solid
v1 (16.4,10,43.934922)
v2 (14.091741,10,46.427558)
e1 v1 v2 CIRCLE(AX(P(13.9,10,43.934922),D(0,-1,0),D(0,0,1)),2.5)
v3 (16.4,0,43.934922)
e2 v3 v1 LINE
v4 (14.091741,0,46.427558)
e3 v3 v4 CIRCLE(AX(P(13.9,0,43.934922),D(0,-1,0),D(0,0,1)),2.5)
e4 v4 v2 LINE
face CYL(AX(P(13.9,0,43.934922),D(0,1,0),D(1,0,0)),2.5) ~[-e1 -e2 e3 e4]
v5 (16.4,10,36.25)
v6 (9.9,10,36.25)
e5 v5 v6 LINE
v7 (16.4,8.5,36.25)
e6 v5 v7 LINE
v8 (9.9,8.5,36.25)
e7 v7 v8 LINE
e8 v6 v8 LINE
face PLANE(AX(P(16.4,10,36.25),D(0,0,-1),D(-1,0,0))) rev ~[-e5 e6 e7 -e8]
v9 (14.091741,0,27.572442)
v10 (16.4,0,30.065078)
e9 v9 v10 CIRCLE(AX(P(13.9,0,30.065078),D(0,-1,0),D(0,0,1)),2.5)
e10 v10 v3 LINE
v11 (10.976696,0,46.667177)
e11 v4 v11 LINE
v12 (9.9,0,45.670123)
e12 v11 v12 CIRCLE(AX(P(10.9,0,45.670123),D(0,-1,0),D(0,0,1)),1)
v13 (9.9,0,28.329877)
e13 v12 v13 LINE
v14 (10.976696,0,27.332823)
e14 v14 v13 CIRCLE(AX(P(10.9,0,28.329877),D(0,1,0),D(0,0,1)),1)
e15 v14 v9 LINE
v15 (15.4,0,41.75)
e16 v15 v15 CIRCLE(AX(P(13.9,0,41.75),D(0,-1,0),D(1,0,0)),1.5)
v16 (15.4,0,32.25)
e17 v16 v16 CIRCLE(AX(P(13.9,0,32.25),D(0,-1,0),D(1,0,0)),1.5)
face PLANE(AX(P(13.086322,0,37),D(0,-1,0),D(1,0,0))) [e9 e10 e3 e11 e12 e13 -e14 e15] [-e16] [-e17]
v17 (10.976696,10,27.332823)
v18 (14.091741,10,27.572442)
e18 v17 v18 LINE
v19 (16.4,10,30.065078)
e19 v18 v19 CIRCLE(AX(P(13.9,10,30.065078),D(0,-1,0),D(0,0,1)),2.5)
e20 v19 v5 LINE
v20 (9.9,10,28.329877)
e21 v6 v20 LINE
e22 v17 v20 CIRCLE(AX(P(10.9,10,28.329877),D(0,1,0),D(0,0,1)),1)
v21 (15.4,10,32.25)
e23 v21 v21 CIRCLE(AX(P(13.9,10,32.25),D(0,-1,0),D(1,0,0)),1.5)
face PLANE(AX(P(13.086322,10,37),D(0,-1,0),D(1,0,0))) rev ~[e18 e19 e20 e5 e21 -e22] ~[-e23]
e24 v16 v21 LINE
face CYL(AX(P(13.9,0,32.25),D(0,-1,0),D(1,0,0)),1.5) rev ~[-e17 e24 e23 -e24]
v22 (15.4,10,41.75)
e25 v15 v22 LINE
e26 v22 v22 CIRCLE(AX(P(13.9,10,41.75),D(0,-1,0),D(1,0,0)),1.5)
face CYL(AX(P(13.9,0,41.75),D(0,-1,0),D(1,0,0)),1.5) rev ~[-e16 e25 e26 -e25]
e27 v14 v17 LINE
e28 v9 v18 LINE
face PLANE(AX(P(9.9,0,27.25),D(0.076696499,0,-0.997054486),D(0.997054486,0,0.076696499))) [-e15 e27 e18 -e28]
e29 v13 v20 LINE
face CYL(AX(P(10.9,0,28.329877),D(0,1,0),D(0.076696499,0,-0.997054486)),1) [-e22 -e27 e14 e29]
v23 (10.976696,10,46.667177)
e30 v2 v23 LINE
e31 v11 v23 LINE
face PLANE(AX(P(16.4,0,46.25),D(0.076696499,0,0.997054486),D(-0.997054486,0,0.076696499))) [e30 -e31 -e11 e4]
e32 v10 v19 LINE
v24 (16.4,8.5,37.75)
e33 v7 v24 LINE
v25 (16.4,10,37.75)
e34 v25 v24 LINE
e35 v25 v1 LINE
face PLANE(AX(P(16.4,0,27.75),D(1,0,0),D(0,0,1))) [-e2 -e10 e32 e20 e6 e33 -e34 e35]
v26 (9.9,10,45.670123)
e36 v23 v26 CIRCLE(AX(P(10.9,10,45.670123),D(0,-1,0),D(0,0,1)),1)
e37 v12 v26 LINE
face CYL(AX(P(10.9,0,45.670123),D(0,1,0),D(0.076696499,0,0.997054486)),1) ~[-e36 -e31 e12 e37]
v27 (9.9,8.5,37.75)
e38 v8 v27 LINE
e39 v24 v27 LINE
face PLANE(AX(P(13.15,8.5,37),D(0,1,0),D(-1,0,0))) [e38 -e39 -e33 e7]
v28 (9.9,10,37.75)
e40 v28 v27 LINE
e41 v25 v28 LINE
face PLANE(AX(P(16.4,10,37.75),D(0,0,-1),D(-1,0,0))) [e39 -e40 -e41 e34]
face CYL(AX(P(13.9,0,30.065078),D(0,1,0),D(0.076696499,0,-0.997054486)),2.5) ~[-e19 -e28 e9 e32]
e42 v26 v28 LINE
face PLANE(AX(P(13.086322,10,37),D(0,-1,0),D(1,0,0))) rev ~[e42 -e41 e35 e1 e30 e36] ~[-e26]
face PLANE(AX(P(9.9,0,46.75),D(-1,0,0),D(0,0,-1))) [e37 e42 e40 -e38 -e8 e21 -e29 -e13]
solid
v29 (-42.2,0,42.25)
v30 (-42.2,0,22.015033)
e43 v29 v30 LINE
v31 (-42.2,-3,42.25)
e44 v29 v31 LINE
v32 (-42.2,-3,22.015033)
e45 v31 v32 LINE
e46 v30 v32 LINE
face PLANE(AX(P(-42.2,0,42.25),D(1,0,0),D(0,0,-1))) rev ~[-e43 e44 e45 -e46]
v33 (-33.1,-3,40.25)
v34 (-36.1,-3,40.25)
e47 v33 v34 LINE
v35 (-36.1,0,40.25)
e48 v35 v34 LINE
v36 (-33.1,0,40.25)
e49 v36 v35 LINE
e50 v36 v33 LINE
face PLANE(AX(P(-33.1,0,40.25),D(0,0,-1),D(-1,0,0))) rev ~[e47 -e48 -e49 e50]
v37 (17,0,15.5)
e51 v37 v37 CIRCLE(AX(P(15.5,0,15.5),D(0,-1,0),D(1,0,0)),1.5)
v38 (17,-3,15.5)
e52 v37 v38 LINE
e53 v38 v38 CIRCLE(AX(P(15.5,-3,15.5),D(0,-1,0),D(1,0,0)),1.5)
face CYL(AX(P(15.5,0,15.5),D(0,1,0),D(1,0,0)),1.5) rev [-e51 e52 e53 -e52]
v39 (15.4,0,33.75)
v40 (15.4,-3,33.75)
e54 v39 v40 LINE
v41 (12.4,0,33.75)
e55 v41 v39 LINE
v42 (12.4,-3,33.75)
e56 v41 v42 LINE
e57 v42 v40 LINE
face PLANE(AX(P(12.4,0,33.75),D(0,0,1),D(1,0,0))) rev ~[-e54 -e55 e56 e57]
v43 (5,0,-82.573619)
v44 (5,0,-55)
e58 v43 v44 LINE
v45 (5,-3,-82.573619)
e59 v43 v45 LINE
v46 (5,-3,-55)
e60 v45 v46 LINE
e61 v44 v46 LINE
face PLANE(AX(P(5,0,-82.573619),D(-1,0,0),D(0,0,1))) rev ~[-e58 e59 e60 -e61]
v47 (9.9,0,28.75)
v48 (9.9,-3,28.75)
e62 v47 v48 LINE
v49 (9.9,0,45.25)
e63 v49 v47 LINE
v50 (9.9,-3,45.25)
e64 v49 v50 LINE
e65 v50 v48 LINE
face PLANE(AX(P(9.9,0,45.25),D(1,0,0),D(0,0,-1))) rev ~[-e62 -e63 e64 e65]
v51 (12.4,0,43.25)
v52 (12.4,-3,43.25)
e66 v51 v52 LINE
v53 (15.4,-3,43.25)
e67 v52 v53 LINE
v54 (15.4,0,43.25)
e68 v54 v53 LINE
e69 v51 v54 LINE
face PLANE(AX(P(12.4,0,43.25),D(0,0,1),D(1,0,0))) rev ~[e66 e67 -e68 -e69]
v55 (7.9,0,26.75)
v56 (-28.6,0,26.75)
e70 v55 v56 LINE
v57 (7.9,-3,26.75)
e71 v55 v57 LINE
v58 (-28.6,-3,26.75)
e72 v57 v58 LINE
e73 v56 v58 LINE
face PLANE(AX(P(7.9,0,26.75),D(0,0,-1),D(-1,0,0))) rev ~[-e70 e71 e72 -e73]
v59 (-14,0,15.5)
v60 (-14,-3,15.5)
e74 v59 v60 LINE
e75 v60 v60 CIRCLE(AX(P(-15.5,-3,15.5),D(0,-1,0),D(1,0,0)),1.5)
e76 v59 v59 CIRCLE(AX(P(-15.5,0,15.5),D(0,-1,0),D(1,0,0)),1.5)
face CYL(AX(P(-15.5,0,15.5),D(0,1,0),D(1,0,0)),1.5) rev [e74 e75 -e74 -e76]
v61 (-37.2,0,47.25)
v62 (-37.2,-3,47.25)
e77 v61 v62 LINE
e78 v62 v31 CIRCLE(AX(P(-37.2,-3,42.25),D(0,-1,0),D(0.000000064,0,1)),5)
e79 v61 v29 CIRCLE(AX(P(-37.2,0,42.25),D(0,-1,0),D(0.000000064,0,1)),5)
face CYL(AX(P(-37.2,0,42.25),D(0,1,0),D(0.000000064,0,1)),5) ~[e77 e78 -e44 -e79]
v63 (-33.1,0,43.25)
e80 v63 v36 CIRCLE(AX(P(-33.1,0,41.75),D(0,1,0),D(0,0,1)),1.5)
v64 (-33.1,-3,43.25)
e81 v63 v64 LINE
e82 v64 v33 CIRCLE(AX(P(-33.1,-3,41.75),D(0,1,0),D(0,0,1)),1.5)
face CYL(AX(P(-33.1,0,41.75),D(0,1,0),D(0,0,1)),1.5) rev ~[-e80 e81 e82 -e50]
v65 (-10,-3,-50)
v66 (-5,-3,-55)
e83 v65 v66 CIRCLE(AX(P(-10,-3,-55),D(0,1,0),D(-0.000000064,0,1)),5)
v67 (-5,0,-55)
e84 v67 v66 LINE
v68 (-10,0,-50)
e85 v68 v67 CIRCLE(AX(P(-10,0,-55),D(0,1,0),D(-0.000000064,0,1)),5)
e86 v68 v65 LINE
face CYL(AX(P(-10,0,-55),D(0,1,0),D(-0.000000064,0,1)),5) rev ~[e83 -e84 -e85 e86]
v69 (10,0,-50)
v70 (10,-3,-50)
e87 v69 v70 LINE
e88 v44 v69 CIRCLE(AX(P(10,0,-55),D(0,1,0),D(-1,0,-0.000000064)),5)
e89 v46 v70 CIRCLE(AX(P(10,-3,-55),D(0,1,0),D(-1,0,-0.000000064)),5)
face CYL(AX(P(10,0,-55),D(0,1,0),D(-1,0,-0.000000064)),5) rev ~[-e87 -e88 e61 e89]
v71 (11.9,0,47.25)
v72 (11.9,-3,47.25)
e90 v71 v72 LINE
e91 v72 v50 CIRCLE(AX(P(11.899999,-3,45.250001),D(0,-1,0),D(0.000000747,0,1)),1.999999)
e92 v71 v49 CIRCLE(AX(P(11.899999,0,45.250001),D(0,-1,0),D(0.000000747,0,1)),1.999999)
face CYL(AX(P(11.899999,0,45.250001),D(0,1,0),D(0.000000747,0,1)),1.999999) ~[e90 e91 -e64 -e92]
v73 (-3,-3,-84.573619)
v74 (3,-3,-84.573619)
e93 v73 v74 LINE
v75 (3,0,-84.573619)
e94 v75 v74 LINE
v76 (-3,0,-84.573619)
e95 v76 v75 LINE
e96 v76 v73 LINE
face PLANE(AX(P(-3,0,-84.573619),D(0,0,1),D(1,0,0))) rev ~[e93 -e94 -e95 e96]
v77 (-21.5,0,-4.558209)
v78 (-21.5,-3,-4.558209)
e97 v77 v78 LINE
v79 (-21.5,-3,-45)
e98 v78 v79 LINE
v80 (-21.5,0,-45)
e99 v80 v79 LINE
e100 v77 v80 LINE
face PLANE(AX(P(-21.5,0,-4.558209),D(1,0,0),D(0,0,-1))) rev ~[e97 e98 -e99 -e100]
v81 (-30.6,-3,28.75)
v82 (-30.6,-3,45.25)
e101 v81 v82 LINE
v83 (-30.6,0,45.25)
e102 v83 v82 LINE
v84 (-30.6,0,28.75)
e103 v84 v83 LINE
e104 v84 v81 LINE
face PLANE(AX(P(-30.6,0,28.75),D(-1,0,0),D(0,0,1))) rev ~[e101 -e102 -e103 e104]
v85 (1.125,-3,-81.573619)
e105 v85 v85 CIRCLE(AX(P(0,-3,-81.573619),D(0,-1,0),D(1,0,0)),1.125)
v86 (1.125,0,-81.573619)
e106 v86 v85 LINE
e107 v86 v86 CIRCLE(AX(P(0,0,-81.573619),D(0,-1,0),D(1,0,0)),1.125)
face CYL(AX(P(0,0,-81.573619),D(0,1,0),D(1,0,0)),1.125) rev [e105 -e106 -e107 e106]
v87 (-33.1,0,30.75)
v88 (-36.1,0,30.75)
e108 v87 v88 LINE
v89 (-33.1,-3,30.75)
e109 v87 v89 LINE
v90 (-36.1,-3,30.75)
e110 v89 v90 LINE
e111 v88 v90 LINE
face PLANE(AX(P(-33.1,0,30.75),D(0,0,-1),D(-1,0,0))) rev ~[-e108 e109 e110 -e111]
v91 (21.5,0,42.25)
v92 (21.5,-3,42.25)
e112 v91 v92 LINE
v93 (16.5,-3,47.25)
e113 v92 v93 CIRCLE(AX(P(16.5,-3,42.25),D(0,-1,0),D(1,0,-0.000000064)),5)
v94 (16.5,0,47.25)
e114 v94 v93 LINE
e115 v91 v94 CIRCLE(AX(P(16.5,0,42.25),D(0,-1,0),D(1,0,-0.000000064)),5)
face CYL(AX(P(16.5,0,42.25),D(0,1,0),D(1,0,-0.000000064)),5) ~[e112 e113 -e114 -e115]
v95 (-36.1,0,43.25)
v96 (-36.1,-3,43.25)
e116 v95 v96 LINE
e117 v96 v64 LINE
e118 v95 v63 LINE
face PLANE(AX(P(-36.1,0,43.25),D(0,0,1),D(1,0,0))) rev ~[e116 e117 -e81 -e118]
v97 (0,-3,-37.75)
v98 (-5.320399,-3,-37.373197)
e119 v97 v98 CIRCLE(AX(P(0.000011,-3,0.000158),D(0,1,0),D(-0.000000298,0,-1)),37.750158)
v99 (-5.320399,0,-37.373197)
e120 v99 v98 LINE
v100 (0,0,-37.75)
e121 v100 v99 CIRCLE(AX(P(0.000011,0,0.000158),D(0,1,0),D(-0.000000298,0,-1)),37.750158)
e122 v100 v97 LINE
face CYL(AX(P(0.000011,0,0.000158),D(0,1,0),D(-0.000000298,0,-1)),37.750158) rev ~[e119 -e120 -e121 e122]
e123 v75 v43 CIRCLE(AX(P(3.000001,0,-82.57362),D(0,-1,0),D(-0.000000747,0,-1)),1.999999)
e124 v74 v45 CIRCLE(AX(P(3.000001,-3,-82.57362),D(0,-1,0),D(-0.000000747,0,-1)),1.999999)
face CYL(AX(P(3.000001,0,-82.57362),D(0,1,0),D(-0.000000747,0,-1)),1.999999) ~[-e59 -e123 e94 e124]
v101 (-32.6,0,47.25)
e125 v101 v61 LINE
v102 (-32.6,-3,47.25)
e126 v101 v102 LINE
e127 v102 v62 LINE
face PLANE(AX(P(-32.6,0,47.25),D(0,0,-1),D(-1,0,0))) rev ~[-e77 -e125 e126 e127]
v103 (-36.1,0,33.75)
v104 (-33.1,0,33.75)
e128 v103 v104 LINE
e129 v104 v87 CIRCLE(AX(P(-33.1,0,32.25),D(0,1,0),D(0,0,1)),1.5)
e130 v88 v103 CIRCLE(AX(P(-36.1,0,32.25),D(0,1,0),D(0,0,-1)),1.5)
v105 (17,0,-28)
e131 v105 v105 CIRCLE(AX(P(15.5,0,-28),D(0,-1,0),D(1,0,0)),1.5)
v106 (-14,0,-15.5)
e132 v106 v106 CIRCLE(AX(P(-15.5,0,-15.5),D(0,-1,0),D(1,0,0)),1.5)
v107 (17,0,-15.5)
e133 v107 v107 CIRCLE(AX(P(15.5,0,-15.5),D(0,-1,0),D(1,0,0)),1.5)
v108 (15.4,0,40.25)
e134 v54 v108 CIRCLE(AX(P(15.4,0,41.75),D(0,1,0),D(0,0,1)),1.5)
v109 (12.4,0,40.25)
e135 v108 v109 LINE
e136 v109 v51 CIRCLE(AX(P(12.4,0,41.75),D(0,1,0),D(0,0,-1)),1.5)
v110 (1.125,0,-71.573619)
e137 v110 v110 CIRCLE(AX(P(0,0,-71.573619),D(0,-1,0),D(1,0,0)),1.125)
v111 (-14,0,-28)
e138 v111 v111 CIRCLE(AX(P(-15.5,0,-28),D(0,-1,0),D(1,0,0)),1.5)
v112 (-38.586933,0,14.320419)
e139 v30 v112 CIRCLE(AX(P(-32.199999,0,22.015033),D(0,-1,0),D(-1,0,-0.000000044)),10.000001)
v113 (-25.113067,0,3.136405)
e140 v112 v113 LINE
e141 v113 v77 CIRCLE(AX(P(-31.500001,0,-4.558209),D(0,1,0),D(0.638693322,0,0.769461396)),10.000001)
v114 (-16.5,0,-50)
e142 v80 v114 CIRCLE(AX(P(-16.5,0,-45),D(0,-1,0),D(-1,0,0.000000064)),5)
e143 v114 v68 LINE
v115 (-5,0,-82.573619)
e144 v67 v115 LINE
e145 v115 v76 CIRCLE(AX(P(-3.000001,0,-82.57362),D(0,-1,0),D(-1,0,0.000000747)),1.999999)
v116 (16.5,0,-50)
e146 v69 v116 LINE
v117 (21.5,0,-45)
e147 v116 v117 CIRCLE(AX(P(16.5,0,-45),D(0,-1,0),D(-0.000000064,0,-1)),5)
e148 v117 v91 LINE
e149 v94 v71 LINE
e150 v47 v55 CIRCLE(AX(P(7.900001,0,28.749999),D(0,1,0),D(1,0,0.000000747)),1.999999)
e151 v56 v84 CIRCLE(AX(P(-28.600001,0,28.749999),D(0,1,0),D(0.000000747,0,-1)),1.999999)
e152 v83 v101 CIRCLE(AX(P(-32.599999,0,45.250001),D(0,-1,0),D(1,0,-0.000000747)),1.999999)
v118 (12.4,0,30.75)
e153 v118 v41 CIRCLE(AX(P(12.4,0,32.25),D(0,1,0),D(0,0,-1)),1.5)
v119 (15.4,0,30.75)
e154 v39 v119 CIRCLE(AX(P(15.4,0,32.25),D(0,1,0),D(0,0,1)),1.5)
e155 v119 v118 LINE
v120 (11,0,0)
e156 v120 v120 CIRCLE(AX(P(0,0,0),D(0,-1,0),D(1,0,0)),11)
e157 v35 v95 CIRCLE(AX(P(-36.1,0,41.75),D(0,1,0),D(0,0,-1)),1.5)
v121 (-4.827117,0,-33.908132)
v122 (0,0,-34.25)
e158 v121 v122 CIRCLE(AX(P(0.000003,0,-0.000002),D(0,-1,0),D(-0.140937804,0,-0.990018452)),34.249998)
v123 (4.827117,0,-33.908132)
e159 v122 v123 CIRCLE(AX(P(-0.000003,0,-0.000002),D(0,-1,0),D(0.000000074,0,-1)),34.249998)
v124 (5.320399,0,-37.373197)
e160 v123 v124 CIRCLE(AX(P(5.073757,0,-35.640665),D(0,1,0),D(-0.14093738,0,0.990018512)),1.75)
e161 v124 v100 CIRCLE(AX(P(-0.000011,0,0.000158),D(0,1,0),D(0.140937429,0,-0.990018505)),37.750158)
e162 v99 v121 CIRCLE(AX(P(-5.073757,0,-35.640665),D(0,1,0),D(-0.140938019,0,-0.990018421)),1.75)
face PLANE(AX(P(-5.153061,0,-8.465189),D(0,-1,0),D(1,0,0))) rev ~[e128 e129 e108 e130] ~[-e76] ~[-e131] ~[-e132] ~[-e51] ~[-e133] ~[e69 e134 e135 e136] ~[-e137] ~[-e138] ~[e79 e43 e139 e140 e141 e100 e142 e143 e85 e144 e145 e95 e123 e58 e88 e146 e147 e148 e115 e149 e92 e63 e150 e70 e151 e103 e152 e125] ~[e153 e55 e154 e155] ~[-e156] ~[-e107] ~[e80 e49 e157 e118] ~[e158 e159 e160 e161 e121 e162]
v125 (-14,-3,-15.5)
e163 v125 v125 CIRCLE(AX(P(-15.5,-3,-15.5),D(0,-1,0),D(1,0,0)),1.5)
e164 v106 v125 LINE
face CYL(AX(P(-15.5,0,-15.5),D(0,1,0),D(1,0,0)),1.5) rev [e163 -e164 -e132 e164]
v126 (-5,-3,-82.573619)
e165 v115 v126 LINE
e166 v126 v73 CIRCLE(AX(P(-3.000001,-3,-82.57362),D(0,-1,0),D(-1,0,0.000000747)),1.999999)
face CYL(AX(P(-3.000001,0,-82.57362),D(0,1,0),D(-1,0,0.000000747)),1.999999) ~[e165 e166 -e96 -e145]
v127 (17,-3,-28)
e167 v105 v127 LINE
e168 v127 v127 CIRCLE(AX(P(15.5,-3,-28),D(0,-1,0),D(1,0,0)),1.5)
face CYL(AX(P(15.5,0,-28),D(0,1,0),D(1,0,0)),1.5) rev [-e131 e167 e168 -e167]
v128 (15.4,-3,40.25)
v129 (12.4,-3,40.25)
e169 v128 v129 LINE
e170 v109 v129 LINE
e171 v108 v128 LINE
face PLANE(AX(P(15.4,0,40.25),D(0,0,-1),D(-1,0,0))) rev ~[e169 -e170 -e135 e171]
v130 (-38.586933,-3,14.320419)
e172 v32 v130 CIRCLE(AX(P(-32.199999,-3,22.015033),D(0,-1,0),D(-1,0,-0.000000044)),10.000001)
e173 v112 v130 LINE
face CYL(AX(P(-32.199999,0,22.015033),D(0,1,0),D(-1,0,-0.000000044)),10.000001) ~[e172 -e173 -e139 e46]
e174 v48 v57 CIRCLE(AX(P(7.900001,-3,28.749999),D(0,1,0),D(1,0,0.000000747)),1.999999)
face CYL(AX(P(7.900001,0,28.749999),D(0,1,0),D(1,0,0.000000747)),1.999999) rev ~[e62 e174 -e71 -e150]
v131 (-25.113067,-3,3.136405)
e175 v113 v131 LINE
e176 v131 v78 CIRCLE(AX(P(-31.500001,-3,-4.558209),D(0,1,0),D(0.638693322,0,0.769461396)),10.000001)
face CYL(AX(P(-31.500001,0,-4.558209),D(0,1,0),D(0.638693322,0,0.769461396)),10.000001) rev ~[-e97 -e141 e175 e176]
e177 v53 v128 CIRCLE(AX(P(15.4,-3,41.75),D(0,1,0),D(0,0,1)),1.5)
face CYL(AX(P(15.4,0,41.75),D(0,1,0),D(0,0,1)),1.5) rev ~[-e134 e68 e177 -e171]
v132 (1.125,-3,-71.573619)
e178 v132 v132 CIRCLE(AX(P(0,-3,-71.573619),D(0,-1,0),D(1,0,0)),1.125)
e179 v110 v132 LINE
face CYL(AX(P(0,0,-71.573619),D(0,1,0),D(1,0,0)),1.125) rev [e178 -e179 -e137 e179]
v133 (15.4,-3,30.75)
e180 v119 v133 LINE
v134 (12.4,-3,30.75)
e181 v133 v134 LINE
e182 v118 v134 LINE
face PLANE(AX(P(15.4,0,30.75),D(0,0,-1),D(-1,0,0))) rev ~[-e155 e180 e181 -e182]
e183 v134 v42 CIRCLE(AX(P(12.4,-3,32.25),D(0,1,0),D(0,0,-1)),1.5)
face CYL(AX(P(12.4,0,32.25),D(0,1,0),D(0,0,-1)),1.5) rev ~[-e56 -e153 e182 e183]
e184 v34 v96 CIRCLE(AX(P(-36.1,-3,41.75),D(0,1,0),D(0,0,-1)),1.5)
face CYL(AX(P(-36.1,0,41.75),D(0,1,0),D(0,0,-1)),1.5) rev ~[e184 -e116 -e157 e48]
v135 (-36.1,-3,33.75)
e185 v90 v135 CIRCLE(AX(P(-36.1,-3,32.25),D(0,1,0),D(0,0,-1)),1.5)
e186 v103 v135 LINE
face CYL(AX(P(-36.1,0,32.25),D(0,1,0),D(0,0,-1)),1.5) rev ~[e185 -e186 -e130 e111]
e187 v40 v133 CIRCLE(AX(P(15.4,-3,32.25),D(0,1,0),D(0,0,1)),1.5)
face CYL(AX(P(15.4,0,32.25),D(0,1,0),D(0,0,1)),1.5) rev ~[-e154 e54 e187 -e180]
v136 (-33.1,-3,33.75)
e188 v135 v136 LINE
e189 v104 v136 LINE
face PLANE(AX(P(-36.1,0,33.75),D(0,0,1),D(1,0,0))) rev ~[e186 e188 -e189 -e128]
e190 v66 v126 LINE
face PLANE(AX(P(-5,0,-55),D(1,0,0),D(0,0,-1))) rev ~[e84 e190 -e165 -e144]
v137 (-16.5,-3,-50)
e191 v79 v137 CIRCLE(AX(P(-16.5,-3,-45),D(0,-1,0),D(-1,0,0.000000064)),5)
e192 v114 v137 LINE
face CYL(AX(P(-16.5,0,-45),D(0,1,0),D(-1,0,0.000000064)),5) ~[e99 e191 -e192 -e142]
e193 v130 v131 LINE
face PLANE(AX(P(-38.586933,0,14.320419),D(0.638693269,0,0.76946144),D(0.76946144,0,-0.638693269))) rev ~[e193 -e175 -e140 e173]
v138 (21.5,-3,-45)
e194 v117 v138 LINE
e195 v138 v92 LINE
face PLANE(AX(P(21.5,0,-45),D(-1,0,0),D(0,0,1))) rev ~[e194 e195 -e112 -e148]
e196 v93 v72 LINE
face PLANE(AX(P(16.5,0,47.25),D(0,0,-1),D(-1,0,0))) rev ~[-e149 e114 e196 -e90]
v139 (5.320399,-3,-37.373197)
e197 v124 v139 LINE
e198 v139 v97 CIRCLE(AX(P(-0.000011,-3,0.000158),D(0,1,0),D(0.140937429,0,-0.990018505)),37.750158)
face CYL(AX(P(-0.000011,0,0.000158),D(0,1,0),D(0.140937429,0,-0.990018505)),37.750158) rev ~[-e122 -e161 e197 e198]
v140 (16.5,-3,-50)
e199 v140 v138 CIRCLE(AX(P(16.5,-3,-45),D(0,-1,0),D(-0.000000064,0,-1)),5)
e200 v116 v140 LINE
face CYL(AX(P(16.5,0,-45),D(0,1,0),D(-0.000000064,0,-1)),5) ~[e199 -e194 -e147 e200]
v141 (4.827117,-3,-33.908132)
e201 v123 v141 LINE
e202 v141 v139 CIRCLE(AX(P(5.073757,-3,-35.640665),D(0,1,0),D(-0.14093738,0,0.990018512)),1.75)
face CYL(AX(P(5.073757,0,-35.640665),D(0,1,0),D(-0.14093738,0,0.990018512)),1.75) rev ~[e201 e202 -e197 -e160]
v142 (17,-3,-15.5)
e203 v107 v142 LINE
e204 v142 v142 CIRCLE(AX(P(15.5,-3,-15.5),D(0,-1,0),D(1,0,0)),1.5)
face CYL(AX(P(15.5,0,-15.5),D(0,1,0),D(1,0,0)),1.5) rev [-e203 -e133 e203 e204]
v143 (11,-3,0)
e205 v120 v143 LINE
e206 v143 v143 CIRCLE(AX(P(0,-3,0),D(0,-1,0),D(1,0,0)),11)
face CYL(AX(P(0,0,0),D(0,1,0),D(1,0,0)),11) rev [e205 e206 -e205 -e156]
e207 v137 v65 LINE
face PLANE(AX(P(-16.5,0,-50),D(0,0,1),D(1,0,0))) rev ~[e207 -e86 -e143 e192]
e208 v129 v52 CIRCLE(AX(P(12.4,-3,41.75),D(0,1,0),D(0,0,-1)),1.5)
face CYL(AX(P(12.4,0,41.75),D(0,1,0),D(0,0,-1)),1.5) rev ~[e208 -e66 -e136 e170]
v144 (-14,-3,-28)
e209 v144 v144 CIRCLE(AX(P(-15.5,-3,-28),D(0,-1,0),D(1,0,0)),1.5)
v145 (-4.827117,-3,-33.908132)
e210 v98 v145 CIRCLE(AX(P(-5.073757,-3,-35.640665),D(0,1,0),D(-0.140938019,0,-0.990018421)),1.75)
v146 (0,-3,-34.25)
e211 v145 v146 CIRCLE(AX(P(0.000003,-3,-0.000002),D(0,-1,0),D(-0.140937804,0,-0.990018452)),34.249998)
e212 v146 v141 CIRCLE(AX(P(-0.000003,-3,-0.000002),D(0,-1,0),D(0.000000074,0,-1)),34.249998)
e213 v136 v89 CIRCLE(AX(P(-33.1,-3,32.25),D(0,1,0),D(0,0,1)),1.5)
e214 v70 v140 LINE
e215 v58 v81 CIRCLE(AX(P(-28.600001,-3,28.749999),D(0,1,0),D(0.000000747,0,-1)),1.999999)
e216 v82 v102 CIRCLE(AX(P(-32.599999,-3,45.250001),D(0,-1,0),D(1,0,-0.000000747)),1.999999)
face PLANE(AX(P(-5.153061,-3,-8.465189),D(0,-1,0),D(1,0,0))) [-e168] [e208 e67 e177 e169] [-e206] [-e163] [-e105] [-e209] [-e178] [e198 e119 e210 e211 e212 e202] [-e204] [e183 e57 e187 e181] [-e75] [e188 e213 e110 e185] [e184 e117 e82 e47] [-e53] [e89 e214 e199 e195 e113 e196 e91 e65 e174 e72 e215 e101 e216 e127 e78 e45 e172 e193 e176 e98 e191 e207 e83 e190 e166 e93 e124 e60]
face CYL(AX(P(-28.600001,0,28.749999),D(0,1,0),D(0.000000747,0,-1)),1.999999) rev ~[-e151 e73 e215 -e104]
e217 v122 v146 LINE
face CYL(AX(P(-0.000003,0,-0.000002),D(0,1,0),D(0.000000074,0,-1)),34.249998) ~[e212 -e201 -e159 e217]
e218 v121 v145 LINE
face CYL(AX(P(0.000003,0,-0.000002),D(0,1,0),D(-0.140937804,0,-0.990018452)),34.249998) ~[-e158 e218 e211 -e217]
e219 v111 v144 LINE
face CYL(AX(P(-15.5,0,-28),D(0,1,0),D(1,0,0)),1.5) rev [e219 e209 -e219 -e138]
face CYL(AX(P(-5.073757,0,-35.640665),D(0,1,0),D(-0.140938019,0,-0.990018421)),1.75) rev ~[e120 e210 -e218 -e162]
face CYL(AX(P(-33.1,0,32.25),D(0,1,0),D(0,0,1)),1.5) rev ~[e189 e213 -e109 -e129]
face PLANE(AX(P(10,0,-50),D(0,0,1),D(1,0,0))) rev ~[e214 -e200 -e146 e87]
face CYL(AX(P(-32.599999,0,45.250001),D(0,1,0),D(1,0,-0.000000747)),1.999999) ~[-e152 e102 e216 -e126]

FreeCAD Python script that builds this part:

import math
import FreeCAD as App
import Part
import Sketcher
from FreeCAD import Vector
Q = App.Units.Quantity


def edges_at(feature, points):
    """Names of the edges that pass closest to the given points."""
    edges = feature.Shape.Edges
    near = lambda p: min(range(len(edges)), key=lambda i: edges[i].distToShape(Part.Vertex(*p))[0])
    return sorted({f"Edge{near(p) + 1}" for p in points})

doc = App.newDocument("Part")
params = doc.addObject("Spreadsheet::Sheet", "Params")
for row, (alias, value) in enumerate([
    ("sketch1_diameter", "3 mm"),
    ("sketch1_diameter2", "3 mm"),
    ("sketch1_diameter3", "3 mm"),
    ("sketch1_diameter4", "3 mm"),
    ("sketch1_diameter5", "22 mm"),
    ("pad1_length", "3 mm"),
    ("sketch2_diameter", "3 mm"),
    ("sketch2_height", "18.5 mm"),
    ("sketch2_height2", "19.5 mm"),
    ("pad2_length", "10 mm"),
    ("sketch3_width", "6.5 mm"),
    ("sketch3_height", "1.5 mm"),
    ("pocket1_length", "1.5 mm"),
    ("fillet_radius", "1 mm"),
    ("fillet2_radius", "2.5 mm"),
], start=1):
    params.set(f"A{row}", alias)
    params.set(f"B{row}", "=" + value)
    params.setAlias(f"B{row}", alias)

body = doc.addObject("PartDesign::Body", "Body")

sketch1 = doc.addObject("Sketcher::SketchObject", "Sketch")
body.addObject(sketch1)
sketch1.AttachmentSupport = (doc.XZ_Plane, [""])
sketch1.MapMode = "FlatFace"
sketch1.addGeometry([
    Part.ArcOfCircle(Part.Circle(Vector(16.5, -45, 0), Vector(0, 0, 1), 5), math.radians(-90.000004), math.radians(0.000004)),
    Part.LineSegment(Vector(21.5, -45, 0), Vector(21.5, 42.25, 0)),
    Part.ArcOfCircle(Part.Circle(Vector(16.5, 42.25, 0), Vector(0, 0, 1), 5), math.radians(-0.000004), math.radians(90.000004)),
    Part.LineSegment(Vector(16.5, 47.25, 0), Vector(11.9, 47.25, 0)),
    Part.ArcOfCircle(Part.Circle(Vector(11.899999, 45.250001, 0), Vector(0, 0, 1), 1.999999), math.radians(89.999957), math.radians(180.000043)),
    Part.LineSegment(Vector(9.9, 45.25, 0), Vector(9.9, 28.75, 0)),
    Part.ArcOfCircle(Part.Circle(Vector(7.900001, 28.749999, 0), Vector(0, 0, 1), 1.999999), math.radians(-90.000043), math.radians(0.000043)),
    Part.LineSegment(Vector(7.9, 26.75, 0), Vector(-28.6, 26.75, 0)),
    Part.ArcOfCircle(Part.Circle(Vector(-28.600001, 28.749999, 0), Vector(0, 0, 1), 1.999999), math.radians(179.999957), math.radians(270.000043)),
    Part.LineSegment(Vector(-30.6, 28.75, 0), Vector(-30.6, 45.25, 0)),
    Part.ArcOfCircle(Part.Circle(Vector(-32.599999, 45.250001, 0), Vector(0, 0, 1), 1.999999), math.radians(-0.000043), math.radians(90.000043)),
    Part.LineSegment(Vector(-32.6, 47.25, 0), Vector(-37.2, 47.25, 0)),
    Part.ArcOfCircle(Part.Circle(Vector(-37.2, 42.25, 0), Vector(0, 0, 1), 5), math.radians(89.999996), math.radians(180.000004)),
    Part.LineSegment(Vector(-42.2, 42.25, 0), Vector(-42.2, 22.015033, 0)),
    Part.ArcOfCircle(Part.Circle(Vector(-32.199999, 22.015033, 0), Vector(0, 0, 1), 10.000001), math.radians(-179.999998), math.radians(-129.694453)),
    Part.LineSegment(Vector(-38.586933, 14.320419, 0), Vector(-25.113067, 3.136405, 0)),
    Part.ArcOfCircle(Part.Circle(Vector(-31.500001, -4.558209, 0), Vector(0, 0, 1), 10.000001), math.radians(0.000002), math.radians(50.305547)),
    Part.LineSegment(Vector(-21.5, -4.558209, 0), Vector(-21.5, -45, 0)),
    Part.ArcOfCircle(Part.Circle(Vector(-16.5, -45, 0), Vector(0, 0, 1), 5), math.radians(179.999996), math.radians(270.000004)),
    Part.LineSegment(Vector(-16.5, -50, 0), Vector(-10, -50, 0)),
    Part.ArcOfCircle(Part.Circle(Vector(-10, -55, 0), Vector(0, 0, 1), 5), math.radians(-0.000004), math.radians(90.000004)),
    Part.LineSegment(Vector(-5, -55, 0), Vector(-5, -82.573619, 0)),
    Part.ArcOfCircle(Part.Circle(Vector(-3.000001, -82.57362, 0), Vector(0, 0, 1), 1.999999), math.radians(179.999957), math.radians(270.000043)),
    Part.LineSegment(Vector(-3, -84.573619, 0), Vector(3, -84.573619, 0)),
    Part.ArcOfCircle(Part.Circle(Vector(3.000001, -82.57362, 0), Vector(0, 0, 1), 1.999999), math.radians(-90.000043), math.radians(0.000043)),
    Part.LineSegment(Vector(5, -82.573619, 0), Vector(5, -55, 0)),
    Part.ArcOfCircle(Part.Circle(Vector(10, -55, 0), Vector(0, 0, 1), 5), math.radians(89.999996), math.radians(180.000004)),
    Part.LineSegment(Vector(10, -50, 0), Vector(16.5, -50, 0)),
    Part.Circle(Vector(-15.5, -28, 0), Vector(0, 0, 1), 1.5),
    Part.Circle(Vector(0, -81.573619, 0), Vector(0, 0, 1), 1.125),
    Part.Circle(Vector(0, -71.573619, 0), Vector(0, 0, 1), 1.125),
    Part.ArcOfCircle(Part.Circle(Vector(0.000003, -0.000002, 0), Vector(0, 0, 1), 34.249998), math.radians(-98.102117), math.radians(-90.000004)),
    Part.ArcOfCircle(Part.Circle(Vector(-0.000003, -0.000002, 0), Vector(0, 0, 1), 34.249998), math.radians(-89.999996), math.radians(-81.897883)),
    Part.ArcOfCircle(Part.Circle(Vector(5.073757, -35.640665, 0), Vector(0, 0, 1), 1.75), math.radians(-81.897871), math.radians(98.102092)),
    Part.ArcOfCircle(Part.Circle(Vector(-0.000011, 0.000158, 0), Vector(0, 0, 1), 37.750158), math.radians(-89.999983), math.radians(-81.897905)),
    Part.ArcOfCircle(Part.Circle(Vector(0.000011, 0.000158, 0), Vector(0, 0, 1), 37.750158), math.radians(-98.102095), math.radians(-90.000017)),
    Part.ArcOfCircle(Part.Circle(Vector(-5.073757, -35.640665, 0), Vector(0, 0, 1), 1.75), math.radians(81.897908), math.radians(261.897871)),
    Part.Circle(Vector(15.5, -28, 0), Vector(0, 0, 1), 1.5),
    Part.Circle(Vector(-15.5, -15.5, 0), Vector(0, 0, 1), 1.5),
    Part.LineSegment(Vector(-33.1, 30.75, 0), Vector(-36.1, 30.75, 0)),
    Part.ArcOfCircle(Part.Circle(Vector(-36.1, 32.25, 0), Vector(0, 0, 1), 1.5), math.radians(90), math.radians(270)),
    Part.LineSegment(Vector(-36.1, 33.75, 0), Vector(-33.1, 33.75, 0)),
    Part.ArcOfCircle(Part.Circle(Vector(-33.1, 32.25, 0), Vector(0, 0, 1), 1.5), math.radians(-90), math.radians(90)),
    Part.ArcOfCircle(Part.Circle(Vector(-33.1, 41.75, 0), Vector(0, 0, 1), 1.5), math.radians(-90), math.radians(90)),
    Part.LineSegment(Vector(-33.1, 40.25, 0), Vector(-36.1, 40.25, 0)),
    Part.ArcOfCircle(Part.Circle(Vector(-36.1, 41.75, 0), Vector(0, 0, 1), 1.5), math.radians(90), math.radians(270)),
    Part.LineSegment(Vector(-36.1, 43.25, 0), Vector(-33.1, 43.25, 0)),
    Part.Circle(Vector(-15.5, 15.5, 0), Vector(0, 0, 1), 1.5),
    Part.Circle(Vector(0, 0, 0), Vector(0, 0, 1), 11),
    Part.Circle(Vector(15.5, -15.5, 0), Vector(0, 0, 1), 1.5),
    Part.Circle(Vector(15.5, 15.5, 0), Vector(0, 0, 1), 1.5),
    Part.ArcOfCircle(Part.Circle(Vector(15.4, 32.25, 0), Vector(0, 0, 1), 1.5), math.radians(-90), math.radians(90)),
    Part.LineSegment(Vector(15.4, 30.75, 0), Vector(12.4, 30.75, 0)),
    Part.ArcOfCircle(Part.Circle(Vector(12.4, 32.25, 0), Vector(0, 0, 1), 1.5), math.radians(90), math.radians(270)),
    Part.LineSegment(Vector(12.4, 33.75, 0), Vector(15.4, 33.75, 0)),
    Part.ArcOfCircle(Part.Circle(Vector(15.4, 41.75, 0), Vector(0, 0, 1), 1.5), math.radians(-90), math.radians(90)),
    Part.LineSegment(Vector(15.4, 40.25, 0), Vector(12.4, 40.25, 0)),
    Part.ArcOfCircle(Part.Circle(Vector(12.4, 41.75, 0), Vector(0, 0, 1), 1.5), math.radians(90), math.radians(270)),
    Part.LineSegment(Vector(12.4, 43.25, 0), Vector(15.4, 43.25, 0)),
], False)
sketch1.addConstraint([
    Sketcher.Constraint("Coincident", 0, 2, 1, 1),
    Sketcher.Constraint("Coincident", 1, 2, 2, 1),
    Sketcher.Constraint("Coincident", 2, 2, 3, 1),
    Sketcher.Constraint("Coincident", 3, 2, 4, 1),
    Sketcher.Constraint("Coincident", 4, 2, 5, 1),
    Sketcher.Constraint("Coincident", 5, 2, 6, 2),
    Sketcher.Constraint("Coincident", 6, 1, 7, 1),
    Sketcher.Constraint("Coincident", 7, 2, 8, 2),
    Sketcher.Constraint("Coincident", 8, 1, 9, 1),
    Sketcher.Constraint("Coincident", 9, 2, 10, 1),
    Sketcher.Constraint("Coincident", 10, 2, 11, 1),
    Sketcher.Constraint("Coincident", 11, 2, 12, 1),
    Sketcher.Constraint("Coincident", 12, 2, 13, 1),
    Sketcher.Constraint("Coincident", 13, 2, 14, 1),
    Sketcher.Constraint("Coincident", 14, 2, 15, 1),
    Sketcher.Constraint("Coincident", 15, 2, 16, 2),
    Sketcher.Constraint("Coincident", 16, 1, 17, 1),
    Sketcher.Constraint("Coincident", 17, 2, 18, 1),
    Sketcher.Constraint("Coincident", 18, 2, 19, 1),
    Sketcher.Constraint("Coincident", 19, 2, 20, 2),
    Sketcher.Constraint("Coincident", 20, 1, 21, 1),
    Sketcher.Constraint("Coincident", 21, 2, 22, 1),
    Sketcher.Constraint("Coincident", 22, 2, 23, 1),
    Sketcher.Constraint("Coincident", 23, 2, 24, 1),
    Sketcher.Constraint("Coincident", 24, 2, 25, 1),
    Sketcher.Constraint("Coincident", 25, 2, 26, 2),
    Sketcher.Constraint("Coincident", 26, 1, 27, 1),
    Sketcher.Constraint("Coincident", 27, 2, 0, 1),
    Sketcher.Constraint("Coincident", 31, 2, 32, 1),
    Sketcher.Constraint("Coincident", 32, 2, 33, 2),
    Sketcher.Constraint("Coincident", 33, 1, 34, 2),
    Sketcher.Constraint("Coincident", 34, 1, 35, 2),
    Sketcher.Constraint("Coincident", 35, 1, 36, 2),
    Sketcher.Constraint("Coincident", 36, 1, 31, 1),
    Sketcher.Constraint("Coincident", 39, 2, 40, 2),
    Sketcher.Constraint("Coincident", 40, 1, 41, 1),
    Sketcher.Constraint("Coincident", 41, 2, 42, 2),
    Sketcher.Constraint("Coincident", 42, 1, 39, 1),
    Sketcher.Constraint("Coincident", 43, 1, 44, 1),
    Sketcher.Constraint("Coincident", 44, 2, 45, 2),
    Sketcher.Constraint("Coincident", 45, 1, 46, 1),
    Sketcher.Constraint("Coincident", 46, 2, 43, 2),
    Sketcher.Constraint("Coincident", 51, 1, 52, 1),
    Sketcher.Constraint("Coincident", 52, 2, 53, 2),
    Sketcher.Constraint("Coincident", 53, 1, 54, 1),
    Sketcher.Constraint("Coincident", 54, 2, 51, 2),
    Sketcher.Constraint("Coincident", 55, 1, 56, 1),
    Sketcher.Constraint("Coincident", 56, 2, 57, 2),
    Sketcher.Constraint("Coincident", 57, 1, 58, 1),
    Sketcher.Constraint("Coincident", 58, 2, 55, 2),
    Sketcher.Constraint("Vertical", 1),
    Sketcher.Constraint("Horizontal", 3),
    Sketcher.Constraint("Vertical", 5),
    Sketcher.Constraint("Horizontal", 7),
    Sketcher.Constraint("Vertical", 9),
    Sketcher.Constraint("Horizontal", 11),
    Sketcher.Constraint("Vertical", 13),
    Sketcher.Constraint("Vertical", 17),
    Sketcher.Constraint("Horizontal", 19),
    Sketcher.Constraint("Vertical", 21),
    Sketcher.Constraint("Horizontal", 23),
    Sketcher.Constraint("Vertical", 25),
    Sketcher.Constraint("Horizontal", 27),
    Sketcher.Constraint("Horizontal", 39),
    Sketcher.Constraint("Horizontal", 41),
    Sketcher.Constraint("Horizontal", 44),
    Sketcher.Constraint("Horizontal", 46),
    Sketcher.Constraint("Horizontal", 52),
    Sketcher.Constraint("Horizontal", 54),
    Sketcher.Constraint("Horizontal", 56),
    Sketcher.Constraint("Horizontal", 58),
    Sketcher.Constraint("Coincident", 31, 3, -1, 1),
    Sketcher.Constraint("Coincident", 32, 3, -1, 1),
    Sketcher.Constraint("Coincident", 48, 3, -1, 1),
    Sketcher.Constraint("PointOnObject", 29, 3, -2),
    Sketcher.Constraint("PointOnObject", 30, 3, -2),
    Sketcher.Constraint("PointOnObject", 31, 2, -2),
    Sketcher.Constraint("PointOnObject", 34, 1, -2),
    Sketcher.Constraint("Diameter", 28, Q("3 mm")),
    Sketcher.Constraint("Diameter", 37, Q("3 mm")),
    Sketcher.Constraint("Diameter", 38, Q("3 mm")),
    Sketcher.Constraint("Diameter", 47, Q("3 mm")),
    Sketcher.Constraint("Diameter", 48, Q("22 mm")),
    Sketcher.Constraint("Diameter", 49, Q("3 mm")),
    Sketcher.Constraint("Diameter", 50, Q("3 mm")),
    Sketcher.Constraint("Radius", 0, Q("5 mm")),
    Sketcher.Constraint("Radius", 2, Q("5 mm")),
    Sketcher.Constraint("Radius", 4, Q("1.999999 mm")),
    Sketcher.Constraint("Radius", 6, Q("1.999999 mm")),
    Sketcher.Constraint("Radius", 8, Q("1.999999 mm")),
    Sketcher.Constraint("Radius", 10, Q("1.999999 mm")),
    Sketcher.Constraint("Radius", 12, Q("5 mm")),
    Sketcher.Constraint("Radius", 14, Q("10.000001 mm")),
    Sketcher.Constraint("Radius", 16, Q("10.000001 mm")),
    Sketcher.Constraint("Radius", 18, Q("5 mm")),
    Sketcher.Constraint("Radius", 20, Q("5 mm")),
    Sketcher.Constraint("Radius", 22, Q("1.999999 mm")),
    Sketcher.Constraint("Radius", 24, Q("1.999999 mm")),
    Sketcher.Constraint("Radius", 26, Q("5 mm")),
    Sketcher.Constraint("Radius", 40, Q("1.5 mm")),
    Sketcher.Constraint("Radius", 43, Q("1.5 mm")),
    Sketcher.Constraint("Radius", 51, Q("1.5 mm")),
    Sketcher.Constraint("Radius", 55, Q("1.5 mm")),
    Sketcher.Constraint("Diameter", 29, Q("2.25 mm")),
    Sketcher.Constraint("Diameter", 30, Q("2.25 mm")),
    Sketcher.Constraint("DistanceX", 23, 1, 23, 2, Q("6 mm")),
    Sketcher.Constraint("DistanceX", 39, 2, 39, 1, Q("3 mm")),
    Sketcher.Constraint("DistanceX", 41, 1, 41, 2, Q("3 mm")),
    Sketcher.Constraint("DistanceX", 44, 2, 44, 1, Q("3 mm")),
    Sketcher.Constraint("DistanceX", 46, 1, 46, 2, Q("3 mm")),
    Sketcher.Constraint("DistanceX", 52, 2, 52, 1, Q("3 mm")),
    Sketcher.Constraint("DistanceX", 54, 1, 54, 2, Q("3 mm")),
    Sketcher.Constraint("DistanceX", 56, 2, 56, 1, Q("3 mm")),
    Sketcher.Constraint("DistanceX", 58, 1, 58, 2, Q("3 mm")),
    Sketcher.Constraint("Radius", 31, Q("34.249998 mm")),
    Sketcher.Constraint("Radius", 33, Q("1.75 mm")),
    Sketcher.Constraint("Radius", 36, Q("1.75 mm")),
    Sketcher.Constraint("DistanceX", 3, 2, 3, 1, Q("4.6 mm")),
    Sketcher.Constraint("DistanceX", 7, 2, 7, 1, Q("36.5 mm")),
    Sketcher.Constraint("DistanceX", 11, 2, 11, 1, Q("4.6 mm")),
    Sketcher.Constraint("DistanceX", 19, 1, 19, 2, Q("6.5 mm")),
    Sketcher.Constraint("DistanceX", 27, 1, 27, 2, Q("6.5 mm")),
    Sketcher.Constraint("DistanceY", 5, 2, 5, 1, Q("16.5 mm")),
    Sketcher.Constraint("DistanceY", 9, 1, 9, 2, Q("16.5 mm")),
    Sketcher.Constraint("DistanceY", 0, 3, -1, 1, Q("45 mm")),
    Sketcher.Constraint("DistanceY", 18, 3, -1, 1, Q("45 mm")),
    Sketcher.Constraint("DistanceX", 20, 3, -1, 1, Q("10 mm")),
    Sketcher.Constraint("DistanceX", -1, 1, 24, 3, Q("3.000001 mm")),
    Sketcher.Constraint("DistanceY", 28, 3, -1, 1, Q("28 mm")),
    Sketcher.Constraint("DistanceY", 37, 3, -1, 1, Q("28 mm")),
    Sketcher.Constraint("DistanceY", 0, 2, -1, 1, Q("45 mm")),
    Sketcher.Constraint("DistanceY", 17, 2, -1, 1, Q("45 mm")),
    Sketcher.Constraint("DistanceX", 19, 2, -1, 1, Q("10 mm")),
    Sketcher.Constraint("DistanceY", 20, 1, -1, 1, Q("55 mm")),
    Sketcher.Constraint("DistanceX", 22, 2, -1, 1, Q("3 mm")),
    Sketcher.Constraint("DistanceY", 25, 2, -1, 1, Q("55 mm")),
    Sketcher.Constraint("DistanceX", -1, 1, 26, 1, Q("10 mm")),
    Sketcher.Constraint("DistanceY", 1, 1, 1, 2, Q("87.25 mm")),
    Sketcher.Constraint("DistanceX", -1, 1, 0, 3, Q("16.5 mm")),
    Sketcher.Constraint("DistanceX", -1, 1, 4, 3, Q("11.899999 mm")),
    Sketcher.Constraint("DistanceX", 8, 3, -1, 1, Q("28.600001 mm")),
    Sketcher.Constraint("DistanceX", 12, 3, -1, 1, Q("37.2 mm")),
    Sketcher.Constraint("DistanceX", 16, 3, -1, 1, Q("31.500001 mm")),
    Sketcher.Constraint("DistanceX", 28, 3, -1, 1, Q("15.5 mm")),
    Sketcher.Constraint("DistanceX", -1, 1, 37, 3, Q("15.5 mm")),
    Sketcher.Constraint("DistanceX", 38, 3, -1, 1, Q("15.5 mm")),
    Sketcher.Constraint("DistanceY", 38, 3, -1, 1, Q("15.5 mm")),
    Sketcher.Constraint("DistanceX", 40, 3, -1, 1, Q("36.1 mm")),
    Sketcher.Constraint("DistanceX", 42, 3, -1, 1, Q("33.1 mm")),
    Sketcher.Constraint("DistanceX", 43, 3, -1, 1, Q("33.1 mm")),
    Sketcher.Constraint("DistanceX", 45, 3, -1, 1, Q("36.1 mm")),
    Sketcher.Constraint("DistanceX", 47, 3, -1, 1, Q("15.5 mm")),
    Sketcher.Constraint("DistanceY", -1, 1, 47, 3, Q("15.5 mm")),
    Sketcher.Constraint("DistanceX", -1, 1, 49, 3, Q("15.5 mm")),
    Sketcher.Constraint("DistanceY", 49, 3, -1, 1, Q("15.5 mm")),
    Sketcher.Constraint("DistanceX", -1, 1, 50, 3, Q("15.5 mm")),
    Sketcher.Constraint("DistanceY", -1, 1, 50, 3, Q("15.5 mm")),
    Sketcher.Constraint("DistanceX", -1, 1, 51, 3, Q("15.4 mm")),
    Sketcher.Constraint("DistanceX", -1, 1, 53, 3, Q("12.4 mm")),
    Sketcher.Constraint("DistanceX", -1, 1, 55, 3, Q("15.4 mm")),
    Sketcher.Constraint("DistanceX", -1, 1, 57, 3, Q("12.4 mm")),
    Sketcher.Constraint("DistanceX", -1, 1, 2, 2, Q("16.5 mm")),
    Sketcher.Constraint("DistanceX", -1, 1, 6, 1, Q("7.9 mm")),
    Sketcher.Constraint("DistanceX", 10, 2, -1, 1, Q("32.6 mm")),
    Sketcher.Constraint("DistanceX", 39, 2, -1, 1, Q("36.1 mm")),
    Sketcher.Constraint("DistanceX", 40, 1, -1, 1, Q("36.1 mm")),
    Sketcher.Constraint("DistanceX", 43, 1, -1, 1, Q("33.1 mm")),
    Sketcher.Constraint("DistanceX", 45, 1, -1, 1, Q("36.1 mm")),
    Sketcher.Constraint("DistanceX", -1, 1, 51, 1, Q("15.4 mm")),
    Sketcher.Constraint("DistanceX", -1, 1, 53, 1, Q("12.4 mm")),
    Sketcher.Constraint("DistanceX", -1, 1, 55, 1, Q("15.4 mm")),
    Sketcher.Constraint("DistanceX", -1, 1, 57, 1, Q("12.4 mm")),
    Sketcher.Constraint("DistanceY", -1, 1, 2, 3, Q("42.25 mm")),
    Sketcher.Constraint("DistanceY", -1, 1, 6, 3, Q("28.749999 mm")),
    Sketcher.Constraint("DistanceY", -1, 1, 10, 3, Q("45.250001 mm")),
    Sketcher.Constraint("DistanceY", -1, 1, 40, 3, Q("32.25 mm")),
    Sketcher.Constraint("DistanceY", -1, 1, 43, 3, Q("41.75 mm")),
    Sketcher.Constraint("DistanceY", -1, 1, 51, 3, Q("32.25 mm")),
    Sketcher.Constraint("DistanceY", -1, 1, 55, 3, Q("41.75 mm")),
    Sketcher.Constraint("DistanceY", -1, 1, 4, 2, Q("45.25 mm")),
    Sketcher.Constraint("DistanceY", -1, 1, 8, 1, Q("28.75 mm")),
    Sketcher.Constraint("DistanceY", -1, 1, 12, 2, Q("42.25 mm")),
    Sketcher.Constraint("DistanceY", 34, 1, -1, 1, Q("37.75 mm")),
    Sketcher.Constraint("Radius", 34, Q("37.750158 mm")),
    Sketcher.Constraint("Radius", 35, Q("37.750158 mm")),
    Sketcher.Constraint("DistanceY", 17, 2, 17, 1, Q("40.441791 mm")),
    Sketcher.Constraint("DistanceY", 21, 2, 21, 1, Q("27.573619 mm")),
    Sketcher.Constraint("DistanceY", 25, 1, 25, 2, Q("27.573619 mm")),
    Sketcher.Constraint("DistanceX", -1, 1, 33, 1, Q("5.320399 mm")),
    Sketcher.Constraint("DistanceX", 35, 1, -1, 1, Q("5.320399 mm")),
    Sketcher.Constraint("DistanceY", 13, 2, 13, 1, Q("20.234967 mm")),
    Sketcher.Constraint("DistanceY", 16, 3, -1, 1, Q("4.558209 mm")),
    Sketcher.Constraint("DistanceY", 22, 3, -1, 1, Q("82.57362 mm")),
    Sketcher.Constraint("DistanceY", 29, 3, -1, 1, Q("81.573619 mm")),
    Sketcher.Constraint("DistanceY", 30, 3, -1, 1, Q("71.573619 mm")),
    Sketcher.Constraint("DistanceY", -1, 1, 14, 2, Q("14.320419 mm")),
    Sketcher.Constraint("DistanceY", 32, 2, -1, 1, Q("33.908132 mm")),
    Sketcher.Constraint("DistanceY", 36, 1, -1, 1, Q("33.908132 mm")),
    Sketcher.Constraint("Distance", 15, Q("17.510775 mm")),
    Sketcher.Constraint("DistanceY", -1, 1, 14, 3, Q("22.015033 mm")),
    Sketcher.Constraint("DistanceX", -1, 1, 33, 3, Q("5.073757 mm")),
    Sketcher.Constraint("DistanceX", 36, 3, -1, 1, Q("5.073757 mm")),
])
sketch1.setExpression("Constraints[78]", "Params.sketch1_diameter")
sketch1.setExpression("Constraints[79]", "Params.sketch1_diameter2")
sketch1.setExpression("Constraints[80]", "Params.sketch1_diameter3")
sketch1.setExpression("Constraints[81]", "Params.sketch1_diameter4")
sketch1.setExpression("Constraints[82]", "Params.sketch1_diameter5")
pad1 = doc.addObject("PartDesign::Pad", "Pad")
body.addObject(pad1)
pad1.Profile = sketch1
pad1.setExpression("Length", "Params.pad1_length")
body2 = doc.addObject("PartDesign::Body", "Body001")

sketch2 = doc.addObject("Sketcher::SketchObject", "Sketch001")
body2.addObject(sketch2)
sketch2.AttachmentSupport = (doc.getObject("XZ_Plane001"), [""])
sketch2.MapMode = "FlatFace"
sketch2.addGeometry([
    Part.LineSegment(Vector(16.4, 27.75, 0), Vector(16.4, 46.25, 0)),
    Part.LineSegment(Vector(16.4, 46.25, 0), Vector(9.9, 46.75, 0)),
    Part.LineSegment(Vector(9.9, 46.75, 0), Vector(9.9, 27.25, 0)),
    Part.LineSegment(Vector(9.9, 27.25, 0), Vector(16.4, 27.75, 0)),
    Part.Circle(Vector(13.9, 32.25, 0), Vector(0, 0, 1), 1.5),
    Part.Circle(Vector(13.9, 41.75, 0), Vector(0, 0, 1), 1.5),
], False)
sketch2.addConstraint([
    Sketcher.Constraint("Coincident", 0, 2, 1, 1),
    Sketcher.Constraint("Coincident", 1, 2, 2, 1),
    Sketcher.Constraint("Coincident", 2, 2, 3, 1),
    Sketcher.Constraint("Coincident", 3, 2, 0, 1),
    Sketcher.Constraint("Vertical", 0),
    Sketcher.Constraint("Vertical", 2),
    Sketcher.Constraint("Equal", 4, 5),
    Sketcher.Constraint("Vertical", 4, 3, 5, 3),
    Sketcher.Constraint("Equal", 1, 3),
    Sketcher.Constraint("Diameter", 4, Q("3 mm")),
    Sketcher.Constraint("DistanceY", 0, 1, 0, 2, Q("18.5 mm")),
    Sketcher.Constraint("DistanceY", 2, 2, 2, 1, Q("19.5 mm")),
    Sketcher.Constraint("DistanceY", 4, 3, 0, 2, Q("14 mm")),
    Sketcher.Constraint("DistanceX", 1, 2, 5, 3, Q("4 mm")),
    Sketcher.Constraint("DistanceY", 5, 3, 1, 2, Q("5 mm")),
    Sketcher.Constraint("DistanceX", -1, 1, 4, 3, Q("13.9 mm")),
    Sketcher.Constraint("DistanceX", -1, 1, 0, 2, Q("16.4 mm")),
    Sketcher.Constraint("DistanceY", -1, 1, 4, 3, Q("32.25 mm")),
])
sketch2.setExpression("Constraints[9]", "Params.sketch2_diameter")
sketch2.setExpression("Constraints[10]", "Params.sketch2_height")
sketch2.setExpression("Constraints[11]", "Params.sketch2_height2")
pad2 = doc.addObject("PartDesign::Pad", "Pad001")
body2.addObject(pad2)
pad2.Profile = sketch2
pad2.setExpression("Length", "Params.pad2_length")
pad2.Reversed = True

sketch3 = doc.addObject("Sketcher::SketchObject", "Sketch002")
body2.addObject(sketch3)
sketch3.AttachmentSupport = (doc.getObject("XZ_Plane001"), [""])
sketch3.MapMode = "FlatFace"
sketch3.AttachmentOffset = App.Placement(Vector(0, 0, -10), App.Rotation())
sketch3.addGeometry([
    Part.LineSegment(Vector(16.4, 37.75, 0), Vector(16.4, 36.25, 0)),
    Part.LineSegment(Vector(16.4, 36.25, 0), Vector(9.9, 36.25, 0)),
    Part.LineSegment(Vector(9.9, 36.25, 0), Vector(9.9, 37.75, 0)),
    Part.LineSegment(Vector(9.9, 37.75, 0), Vector(16.4, 37.75, 0)),
], False)
sketch3.addConstraint([
    Sketcher.Constraint("Coincident", 0, 2, 1, 1),
    Sketcher.Constraint("Coincident", 1, 2, 2, 1),
    Sketcher.Constraint("Coincident", 2, 2, 3, 1),
    Sketcher.Constraint("Coincident", 3, 2, 0, 1),
    Sketcher.Constraint("Vertical", 0),
    Sketcher.Constraint("Horizontal", 1),
    Sketcher.Constraint("Vertical", 2),
    Sketcher.Constraint("Horizontal", 3),
    Sketcher.Constraint("DistanceX", 1, 2, 1, 1, Q("6.5 mm")),
    Sketcher.Constraint("DistanceY", 0, 2, 0, 1, Q("1.5 mm")),
    Sketcher.Constraint("DistanceX", -1, 1, 0, 2, Q("16.4 mm")),
    Sketcher.Constraint("DistanceY", -1, 1, 0, 2, Q("36.25 mm")),
])
sketch3.setExpression("Constraints[8]", "Params.sketch3_width")
sketch3.setExpression("Constraints[9]", "Params.sketch3_height")
pocket1 = doc.addObject("PartDesign::Pocket", "Pocket")
body2.addObject(pocket1)
pocket1.Profile = sketch3
pocket1.setExpression("Length", "Params.pocket1_length")
pocket1.Reversed = True
doc.recompute()

fillet = doc.addObject("PartDesign::Fillet", "Fillet")
body2.addObject(fillet)
fillet.Base = (pocket1, edges_at(pocket1, [(9.9, 5, 46.75), (9.9, 5, 27.25)]))
fillet.setExpression("Radius", "Params.fillet_radius")
doc.recompute()

fillet2 = doc.addObject("PartDesign::Fillet", "Fillet001")
body2.addObject(fillet2)
fillet2.Base = (fillet, edges_at(fillet, [(16.4, 5, 27.75), (16.4, 5, 46.25)]))
fillet2.setExpression("Radius", "Params.fillet2_radius")

doc.recompute()
